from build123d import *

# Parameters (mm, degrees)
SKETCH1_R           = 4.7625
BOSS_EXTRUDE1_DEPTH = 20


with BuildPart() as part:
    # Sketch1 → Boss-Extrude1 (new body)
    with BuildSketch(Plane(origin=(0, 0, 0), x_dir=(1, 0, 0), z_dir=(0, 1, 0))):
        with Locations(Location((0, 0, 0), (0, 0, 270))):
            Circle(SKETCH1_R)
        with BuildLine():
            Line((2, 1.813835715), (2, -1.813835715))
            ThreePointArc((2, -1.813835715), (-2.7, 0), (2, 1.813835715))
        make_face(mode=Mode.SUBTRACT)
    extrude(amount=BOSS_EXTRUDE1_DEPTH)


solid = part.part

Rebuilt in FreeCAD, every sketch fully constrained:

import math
import FreeCAD as App
import Part
import Sketcher
from FreeCAD import Vector

doc = App.newDocument("Part")
body = doc.addObject("PartDesign::Body", "Body")

# Sketch on XZ plane
sketch1 = body.newObject("Sketcher::SketchObject", "Sketch")
sketch1.AttachmentSupport = (doc.getObject("XZ_Plane"), [""])
sketch1.MapMode = "FlatFace"
sketch1.addGeometry(Part.Circle(Vector(0, 0, 0), Vector(0, 0, 1), 4.7625), False)
sketch1.addGeometry(Part.ArcOfCircle(Part.Circle(Vector(0, 0, 0), Vector(0, 0, 1), 2.7), math.radians(42.205446), math.radians(317.794554)), False)
sketch1.addGeometry(Part.LineSegment(Vector(2, -1.813836, 0), Vector(2, 1.813836, 0)), False)
sketch1.addConstraint(Sketcher.Constraint("Coincident", 1, 1, 2, 2))
sketch1.addConstraint(Sketcher.Constraint("Coincident", 2, 1, 1, 2))
sketch1.addConstraint(Sketcher.Constraint("Vertical", 2))
sketch1.addConstraint(Sketcher.Constraint("Coincident", 0, 3, -1, 1))
sketch1.addConstraint(Sketcher.Constraint("Coincident", 1, 3, -1, 1))
sketch1.addConstraint(Sketcher.Constraint("Radius", 1, 2.7))
sketch1.addConstraint(Sketcher.Constraint("Diameter", 0, 9.525))
sketch1.addConstraint(Sketcher.Constraint("DistanceX", -1, 1, 1, 1, 2.0))
pad1 = body.newObject("PartDesign::Pad", "Pad")
pad1.Profile = sketch1
pad1.Length = 20
pad1.Reversed = True

doc.recompute()
